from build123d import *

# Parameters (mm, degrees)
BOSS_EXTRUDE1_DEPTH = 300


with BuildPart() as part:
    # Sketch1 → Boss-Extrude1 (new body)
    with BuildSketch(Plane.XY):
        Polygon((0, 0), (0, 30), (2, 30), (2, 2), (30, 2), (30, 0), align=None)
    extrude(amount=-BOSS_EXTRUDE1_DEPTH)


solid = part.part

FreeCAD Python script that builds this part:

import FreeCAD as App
import Part
import Sketcher
from FreeCAD import Vector


def add_polygon(sketch, points):
    """Adds a closed chain of lines whose ends are joined by coincident constraints."""
    first, n = sketch.GeometryCount, len(points)
    for a, b in zip(points, points[1:] + points[:1]):
        sketch.addGeometry(Part.LineSegment(App.Vector(*a, 0), App.Vector(*b, 0)), False)
    for i in range(n):
        sketch.addConstraint(Sketcher.Constraint("Coincident", first + i, 2, first + (i + 1) % n, 1))

doc = App.newDocument("Part")
body = doc.addObject("PartDesign::Body", "Body")

sketch1 = body.newObject("Sketcher::SketchObject", "Sketch")
sketch1.AttachmentSupport = (doc.getObject("XY_Plane"), [""])
sketch1.MapMode = "FlatFace"
add_polygon(sketch1, [(0, 30), (0, 0), (30, 0), (30, 2), (2, 2), (2, 30)])
sketch1.addConstraint(Sketcher.Constraint("Vertical", 0))
sketch1.addConstraint(Sketcher.Constraint("Horizontal", 1))
sketch1.addConstraint(Sketcher.Constraint("Vertical", 2))
sketch1.addConstraint(Sketcher.Constraint("Horizontal", 3))
sketch1.addConstraint(Sketcher.Constraint("Vertical", 4))
sketch1.addConstraint(Sketcher.Constraint("Horizontal", 5))
sketch1.addConstraint(Sketcher.Constraint("Coincident", 0, 2, -1, 1))
sketch1.addConstraint(Sketcher.Constraint("Equal", 1, 0))
sketch1.addConstraint(Sketcher.Constraint("Equal", 5, 2))
sketch1.addConstraint(Sketcher.Constraint("DistanceX", 1, 1, 1, 2, 30.0))
sketch1.addConstraint(Sketcher.Constraint("DistanceX", 3, 2, 3, 1, 28.0))
pad1 = body.newObject("PartDesign::Pad", "Pad")
pad1.Profile = sketch1
pad1.Length = 300
pad1.Reversed = True

doc.recompute()
